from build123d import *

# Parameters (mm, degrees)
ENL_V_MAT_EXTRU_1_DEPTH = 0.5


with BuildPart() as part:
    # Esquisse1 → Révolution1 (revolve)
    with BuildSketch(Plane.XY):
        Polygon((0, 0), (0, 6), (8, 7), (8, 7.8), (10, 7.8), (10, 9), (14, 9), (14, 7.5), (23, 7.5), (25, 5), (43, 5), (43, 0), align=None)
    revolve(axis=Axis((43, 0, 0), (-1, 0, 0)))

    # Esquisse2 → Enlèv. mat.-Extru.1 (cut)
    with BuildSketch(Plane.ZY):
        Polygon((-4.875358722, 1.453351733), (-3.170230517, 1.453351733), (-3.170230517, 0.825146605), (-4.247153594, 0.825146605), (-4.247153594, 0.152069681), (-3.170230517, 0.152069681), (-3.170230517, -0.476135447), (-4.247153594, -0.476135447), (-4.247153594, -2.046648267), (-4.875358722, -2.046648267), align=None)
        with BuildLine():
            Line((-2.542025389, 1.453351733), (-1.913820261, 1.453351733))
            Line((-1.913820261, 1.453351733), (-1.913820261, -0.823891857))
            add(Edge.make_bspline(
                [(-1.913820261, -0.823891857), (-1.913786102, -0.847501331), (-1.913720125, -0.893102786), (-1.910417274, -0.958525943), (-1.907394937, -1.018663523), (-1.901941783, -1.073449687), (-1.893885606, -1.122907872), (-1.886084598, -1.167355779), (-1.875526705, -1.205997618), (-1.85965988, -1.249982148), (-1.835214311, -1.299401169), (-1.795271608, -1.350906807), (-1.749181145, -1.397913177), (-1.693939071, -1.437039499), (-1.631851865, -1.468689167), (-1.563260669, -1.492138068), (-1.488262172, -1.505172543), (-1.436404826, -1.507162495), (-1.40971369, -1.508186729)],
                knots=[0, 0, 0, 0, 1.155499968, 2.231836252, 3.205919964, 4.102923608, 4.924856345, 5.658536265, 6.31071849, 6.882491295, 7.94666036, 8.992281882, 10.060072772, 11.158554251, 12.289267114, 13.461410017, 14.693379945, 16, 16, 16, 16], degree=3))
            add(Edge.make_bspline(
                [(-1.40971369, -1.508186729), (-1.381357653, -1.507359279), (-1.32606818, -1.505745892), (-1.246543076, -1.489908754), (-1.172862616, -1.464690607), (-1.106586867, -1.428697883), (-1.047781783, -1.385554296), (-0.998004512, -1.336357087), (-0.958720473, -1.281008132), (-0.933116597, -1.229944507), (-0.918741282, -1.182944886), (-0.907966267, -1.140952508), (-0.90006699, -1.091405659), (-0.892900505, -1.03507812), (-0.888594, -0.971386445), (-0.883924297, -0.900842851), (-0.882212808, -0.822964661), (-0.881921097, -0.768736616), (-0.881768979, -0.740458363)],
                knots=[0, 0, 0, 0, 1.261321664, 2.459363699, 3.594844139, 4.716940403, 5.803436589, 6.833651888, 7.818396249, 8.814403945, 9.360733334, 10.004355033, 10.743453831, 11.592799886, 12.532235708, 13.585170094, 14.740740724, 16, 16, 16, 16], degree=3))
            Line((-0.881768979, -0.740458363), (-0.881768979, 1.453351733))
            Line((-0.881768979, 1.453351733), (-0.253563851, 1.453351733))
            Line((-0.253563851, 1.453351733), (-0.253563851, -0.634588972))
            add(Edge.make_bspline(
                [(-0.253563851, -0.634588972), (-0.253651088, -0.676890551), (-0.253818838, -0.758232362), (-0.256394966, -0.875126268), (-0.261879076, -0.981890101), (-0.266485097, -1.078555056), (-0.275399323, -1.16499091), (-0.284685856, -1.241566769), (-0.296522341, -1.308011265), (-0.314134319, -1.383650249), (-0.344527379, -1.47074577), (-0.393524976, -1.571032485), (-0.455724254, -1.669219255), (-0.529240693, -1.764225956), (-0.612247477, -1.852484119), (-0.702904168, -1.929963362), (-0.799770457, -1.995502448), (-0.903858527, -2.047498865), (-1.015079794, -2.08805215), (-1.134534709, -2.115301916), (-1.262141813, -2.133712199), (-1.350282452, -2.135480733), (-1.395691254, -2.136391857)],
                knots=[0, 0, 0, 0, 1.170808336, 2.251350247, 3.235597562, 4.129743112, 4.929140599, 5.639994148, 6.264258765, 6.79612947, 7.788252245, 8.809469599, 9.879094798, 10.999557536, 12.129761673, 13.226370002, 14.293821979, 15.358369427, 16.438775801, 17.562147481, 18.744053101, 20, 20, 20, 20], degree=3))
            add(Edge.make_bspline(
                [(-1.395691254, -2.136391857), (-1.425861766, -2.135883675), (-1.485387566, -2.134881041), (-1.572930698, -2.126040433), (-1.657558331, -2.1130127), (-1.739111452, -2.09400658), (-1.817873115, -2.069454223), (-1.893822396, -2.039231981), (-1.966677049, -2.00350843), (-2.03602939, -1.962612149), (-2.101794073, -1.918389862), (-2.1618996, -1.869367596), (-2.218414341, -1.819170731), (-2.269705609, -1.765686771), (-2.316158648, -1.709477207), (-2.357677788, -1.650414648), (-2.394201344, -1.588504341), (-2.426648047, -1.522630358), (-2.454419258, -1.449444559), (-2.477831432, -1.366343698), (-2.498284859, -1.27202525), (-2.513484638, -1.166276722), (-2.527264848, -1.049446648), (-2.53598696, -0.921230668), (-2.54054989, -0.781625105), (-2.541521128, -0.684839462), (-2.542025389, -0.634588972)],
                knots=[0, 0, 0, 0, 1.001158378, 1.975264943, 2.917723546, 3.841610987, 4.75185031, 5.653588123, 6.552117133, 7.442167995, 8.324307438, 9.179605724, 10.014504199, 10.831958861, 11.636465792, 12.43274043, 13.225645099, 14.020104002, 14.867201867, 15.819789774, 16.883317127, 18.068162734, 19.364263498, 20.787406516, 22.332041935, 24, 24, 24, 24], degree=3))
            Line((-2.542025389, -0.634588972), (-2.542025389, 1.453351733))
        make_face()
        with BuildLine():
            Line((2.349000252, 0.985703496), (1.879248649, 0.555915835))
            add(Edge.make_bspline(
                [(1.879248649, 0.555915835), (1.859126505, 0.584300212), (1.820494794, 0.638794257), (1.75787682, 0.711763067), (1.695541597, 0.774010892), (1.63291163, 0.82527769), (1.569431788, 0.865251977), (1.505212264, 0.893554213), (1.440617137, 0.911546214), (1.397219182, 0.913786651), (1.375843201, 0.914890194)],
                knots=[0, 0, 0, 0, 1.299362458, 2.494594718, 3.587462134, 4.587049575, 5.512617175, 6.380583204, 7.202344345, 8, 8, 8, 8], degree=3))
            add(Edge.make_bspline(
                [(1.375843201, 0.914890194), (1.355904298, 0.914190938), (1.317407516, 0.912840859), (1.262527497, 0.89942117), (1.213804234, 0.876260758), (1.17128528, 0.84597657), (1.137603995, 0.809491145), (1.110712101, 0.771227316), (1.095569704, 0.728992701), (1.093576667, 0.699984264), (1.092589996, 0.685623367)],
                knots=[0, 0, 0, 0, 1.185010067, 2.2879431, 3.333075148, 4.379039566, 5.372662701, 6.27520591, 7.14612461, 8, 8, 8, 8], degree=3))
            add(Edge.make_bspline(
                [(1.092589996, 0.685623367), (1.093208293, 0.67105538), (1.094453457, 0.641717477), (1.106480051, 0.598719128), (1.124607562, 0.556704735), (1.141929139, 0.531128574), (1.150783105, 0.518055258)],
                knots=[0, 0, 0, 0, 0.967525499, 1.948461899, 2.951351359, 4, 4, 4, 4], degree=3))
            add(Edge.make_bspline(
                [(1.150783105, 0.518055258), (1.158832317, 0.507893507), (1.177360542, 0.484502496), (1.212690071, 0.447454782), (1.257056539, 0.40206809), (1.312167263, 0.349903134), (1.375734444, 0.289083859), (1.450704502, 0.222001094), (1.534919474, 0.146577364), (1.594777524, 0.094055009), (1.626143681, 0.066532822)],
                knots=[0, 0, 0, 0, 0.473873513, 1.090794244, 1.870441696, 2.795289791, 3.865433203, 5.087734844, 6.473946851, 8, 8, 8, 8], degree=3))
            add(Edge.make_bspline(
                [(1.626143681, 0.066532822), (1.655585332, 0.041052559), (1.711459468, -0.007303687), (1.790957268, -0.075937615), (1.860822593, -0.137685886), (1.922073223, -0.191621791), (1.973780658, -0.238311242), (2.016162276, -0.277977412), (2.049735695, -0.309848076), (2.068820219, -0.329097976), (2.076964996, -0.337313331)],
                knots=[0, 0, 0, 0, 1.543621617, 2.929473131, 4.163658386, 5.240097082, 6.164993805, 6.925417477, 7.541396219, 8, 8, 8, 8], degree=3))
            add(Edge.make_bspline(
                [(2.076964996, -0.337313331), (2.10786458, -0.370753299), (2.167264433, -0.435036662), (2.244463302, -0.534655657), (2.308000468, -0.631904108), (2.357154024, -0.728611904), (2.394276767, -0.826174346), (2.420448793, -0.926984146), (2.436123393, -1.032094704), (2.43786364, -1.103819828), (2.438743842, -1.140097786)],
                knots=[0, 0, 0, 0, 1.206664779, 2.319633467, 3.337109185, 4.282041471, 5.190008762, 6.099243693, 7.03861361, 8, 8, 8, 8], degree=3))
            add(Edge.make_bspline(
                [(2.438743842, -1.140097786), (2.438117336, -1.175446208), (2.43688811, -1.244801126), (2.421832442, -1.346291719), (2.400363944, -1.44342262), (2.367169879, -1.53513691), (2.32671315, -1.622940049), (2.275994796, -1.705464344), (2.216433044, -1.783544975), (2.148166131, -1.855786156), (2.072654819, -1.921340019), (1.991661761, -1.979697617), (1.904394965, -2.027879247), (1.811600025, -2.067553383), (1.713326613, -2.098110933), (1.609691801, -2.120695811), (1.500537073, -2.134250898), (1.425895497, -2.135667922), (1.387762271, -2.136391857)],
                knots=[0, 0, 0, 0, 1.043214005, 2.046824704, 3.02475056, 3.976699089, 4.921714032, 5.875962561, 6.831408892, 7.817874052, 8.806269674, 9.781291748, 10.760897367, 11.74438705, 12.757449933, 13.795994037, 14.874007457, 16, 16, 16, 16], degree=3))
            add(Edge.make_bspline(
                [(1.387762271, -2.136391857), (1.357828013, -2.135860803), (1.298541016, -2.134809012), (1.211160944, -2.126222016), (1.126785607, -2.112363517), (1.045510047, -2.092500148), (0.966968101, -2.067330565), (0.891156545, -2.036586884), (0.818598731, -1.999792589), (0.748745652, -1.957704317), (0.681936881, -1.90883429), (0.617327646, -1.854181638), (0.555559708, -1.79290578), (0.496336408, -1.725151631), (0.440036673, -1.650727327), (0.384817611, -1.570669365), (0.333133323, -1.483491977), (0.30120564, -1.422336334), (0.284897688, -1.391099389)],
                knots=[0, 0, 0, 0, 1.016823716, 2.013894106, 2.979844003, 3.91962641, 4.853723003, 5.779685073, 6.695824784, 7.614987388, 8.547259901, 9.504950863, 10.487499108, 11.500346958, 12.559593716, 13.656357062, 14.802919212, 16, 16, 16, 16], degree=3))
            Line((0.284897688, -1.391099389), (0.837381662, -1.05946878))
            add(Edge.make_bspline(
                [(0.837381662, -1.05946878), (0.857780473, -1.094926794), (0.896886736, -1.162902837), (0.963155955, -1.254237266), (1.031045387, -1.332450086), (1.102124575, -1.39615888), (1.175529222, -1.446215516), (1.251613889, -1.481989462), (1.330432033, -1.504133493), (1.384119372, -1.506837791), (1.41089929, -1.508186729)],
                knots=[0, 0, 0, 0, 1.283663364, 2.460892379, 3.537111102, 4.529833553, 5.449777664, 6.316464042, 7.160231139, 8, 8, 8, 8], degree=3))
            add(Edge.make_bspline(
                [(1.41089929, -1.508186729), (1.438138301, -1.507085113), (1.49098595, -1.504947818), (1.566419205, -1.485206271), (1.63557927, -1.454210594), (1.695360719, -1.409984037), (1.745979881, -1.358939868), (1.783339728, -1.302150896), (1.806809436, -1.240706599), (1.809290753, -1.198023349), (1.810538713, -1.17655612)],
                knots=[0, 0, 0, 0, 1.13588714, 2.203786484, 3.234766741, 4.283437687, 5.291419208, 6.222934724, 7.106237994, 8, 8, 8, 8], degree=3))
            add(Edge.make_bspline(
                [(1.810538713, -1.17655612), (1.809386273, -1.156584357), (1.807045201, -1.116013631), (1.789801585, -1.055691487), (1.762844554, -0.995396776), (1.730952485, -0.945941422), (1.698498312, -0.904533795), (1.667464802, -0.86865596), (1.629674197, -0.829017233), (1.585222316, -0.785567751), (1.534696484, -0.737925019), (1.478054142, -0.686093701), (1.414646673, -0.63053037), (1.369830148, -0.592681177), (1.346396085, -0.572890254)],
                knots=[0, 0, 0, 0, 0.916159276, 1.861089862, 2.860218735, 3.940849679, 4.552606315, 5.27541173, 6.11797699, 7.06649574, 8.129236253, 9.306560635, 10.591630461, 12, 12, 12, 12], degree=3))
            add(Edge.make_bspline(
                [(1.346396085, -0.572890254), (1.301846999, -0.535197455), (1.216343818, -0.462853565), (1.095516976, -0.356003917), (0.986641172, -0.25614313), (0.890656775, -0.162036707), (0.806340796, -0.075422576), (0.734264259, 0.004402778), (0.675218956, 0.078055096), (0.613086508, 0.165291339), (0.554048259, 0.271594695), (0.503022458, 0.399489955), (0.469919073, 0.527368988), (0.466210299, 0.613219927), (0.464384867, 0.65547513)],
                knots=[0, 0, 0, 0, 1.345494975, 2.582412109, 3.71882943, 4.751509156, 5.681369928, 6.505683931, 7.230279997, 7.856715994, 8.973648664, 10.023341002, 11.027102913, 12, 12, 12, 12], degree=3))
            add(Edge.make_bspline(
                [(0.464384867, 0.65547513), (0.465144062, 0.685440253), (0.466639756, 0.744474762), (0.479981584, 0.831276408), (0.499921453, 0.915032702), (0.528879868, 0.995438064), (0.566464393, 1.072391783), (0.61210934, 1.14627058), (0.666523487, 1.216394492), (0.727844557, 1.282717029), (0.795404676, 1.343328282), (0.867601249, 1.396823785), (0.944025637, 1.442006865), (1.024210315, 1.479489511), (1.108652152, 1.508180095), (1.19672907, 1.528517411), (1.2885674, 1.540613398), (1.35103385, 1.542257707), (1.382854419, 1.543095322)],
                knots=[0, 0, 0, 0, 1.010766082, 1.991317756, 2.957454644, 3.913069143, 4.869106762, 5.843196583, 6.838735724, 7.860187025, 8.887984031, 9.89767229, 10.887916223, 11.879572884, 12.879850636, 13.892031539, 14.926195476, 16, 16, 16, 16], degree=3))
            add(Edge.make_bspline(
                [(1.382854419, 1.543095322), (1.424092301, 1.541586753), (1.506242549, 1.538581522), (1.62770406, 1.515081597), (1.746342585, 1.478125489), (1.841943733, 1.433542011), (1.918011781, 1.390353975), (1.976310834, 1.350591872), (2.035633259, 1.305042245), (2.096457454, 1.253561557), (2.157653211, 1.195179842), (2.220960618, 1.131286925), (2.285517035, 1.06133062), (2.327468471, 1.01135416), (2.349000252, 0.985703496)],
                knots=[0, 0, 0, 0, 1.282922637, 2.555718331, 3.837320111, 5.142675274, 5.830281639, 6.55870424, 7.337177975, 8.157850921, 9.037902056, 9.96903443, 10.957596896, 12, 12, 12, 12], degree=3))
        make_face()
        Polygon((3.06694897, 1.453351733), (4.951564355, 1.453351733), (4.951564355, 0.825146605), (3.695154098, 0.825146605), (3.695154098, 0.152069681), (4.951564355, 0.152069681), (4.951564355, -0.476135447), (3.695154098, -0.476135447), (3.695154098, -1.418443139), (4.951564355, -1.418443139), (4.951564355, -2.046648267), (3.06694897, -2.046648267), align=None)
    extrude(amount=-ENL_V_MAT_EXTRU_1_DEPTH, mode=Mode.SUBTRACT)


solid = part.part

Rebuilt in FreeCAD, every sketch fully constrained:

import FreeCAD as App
import Part
import Sketcher


def add_polygon(sketch, points):
    """Adds a closed chain of lines whose ends are joined by coincident constraints."""
    first, n = sketch.GeometryCount, len(points)
    for a, b in zip(points, points[1:] + points[:1]):
        sketch.addGeometry(Part.LineSegment(App.Vector(*a, 0), App.Vector(*b, 0)), False)
    for i in range(n):
        sketch.addConstraint(Sketcher.Constraint("Coincident", first + i, 2, first + (i + 1) % n, 1))

doc = App.newDocument("Part")
params = doc.addObject("Spreadsheet::Sheet", "Params")
for row, (alias, value) in enumerate([
    ("sketch1_width", "43 mm"),
    ("sketch1_width2", "18 mm"),
    ("sketch1_width3", "9 mm"),
    ("sketch1_width4", "4 mm"),
    ("sketch1_width5", "2 mm"),
    ("revolution_angle", "360 deg"),
    ("sketch2_width", "3.5 mm"),
    ("sketch2_width2", "3.5 mm"),
    ("pocket1_length", "0.5 mm"),
], start=1):
    params.set(f"A{row}", alias)
    params.set(f"B{row}", "=" + value)
    params.setAlias(f"B{row}", alias)

body = doc.addObject("PartDesign::Body", "Body")

sketch1 = body.newObject("Sketcher::SketchObject", "Sketch")
sketch1.AttachmentSupport = (doc.getObject("XY_Plane"), [""])
sketch1.MapMode = "FlatFace"
add_polygon(sketch1, [(0, 6), (0, 0), (43, 0), (43, 5), (25, 5), (23, 7.5), (14, 7.5), (14, 9), (10, 9), (10, 7.8), (8, 7.8), (8, 7)])
sketch1.addConstraint(Sketcher.Constraint("Vertical", 0))
sketch1.addConstraint(Sketcher.Constraint("Horizontal", 1))
sketch1.addConstraint(Sketcher.Constraint("Vertical", 2))
sketch1.addConstraint(Sketcher.Constraint("Horizontal", 3))
sketch1.addConstraint(Sketcher.Constraint("Horizontal", 5))
sketch1.addConstraint(Sketcher.Constraint("Vertical", 6))
sketch1.addConstraint(Sketcher.Constraint("Horizontal", 7))
sketch1.addConstraint(Sketcher.Constraint("Vertical", 8))
sketch1.addConstraint(Sketcher.Constraint("Horizontal", 9))
sketch1.addConstraint(Sketcher.Constraint("Vertical", 10))
sketch1.addConstraint(Sketcher.Constraint("Coincident", 0, 2, -1, 1))
sketch1.addConstraint(Sketcher.Constraint("DistanceX", 1, 1, 1, 2, 43.0))
sketch1.addConstraint(Sketcher.Constraint("DistanceX", 3, 2, 3, 1, 18.0))
sketch1.addConstraint(Sketcher.Constraint("DistanceX", 5, 2, 5, 1, 9.0))
sketch1.addConstraint(Sketcher.Constraint("DistanceX", 7, 2, 7, 1, 4.0))
sketch1.addConstraint(Sketcher.Constraint("DistanceX", 9, 2, 9, 1, 2.0))
sketch1.addConstraint(Sketcher.Constraint("DistanceY", 0, 2, 0, 1, 6.0))
sketch1.addConstraint(Sketcher.Constraint("DistanceY", 2, 1, 2, 2, 5.0))
sketch1.addConstraint(Sketcher.Constraint("DistanceY", 6, 1, 6, 2, 1.5))
sketch1.addConstraint(Sketcher.Constraint("DistanceY", 8, 2, 8, 1, 1.2))
sketch1.addConstraint(Sketcher.Constraint("DistanceY", 10, 2, 10, 1, 0.8))
sketch1.addConstraint(Sketcher.Constraint("DistanceX", -1, 1, 4, 2, 23.0))
sketch1.addConstraint(Sketcher.Constraint("DistanceY", -1, 1, 6, 2, 9.0))
sketch1.setExpression("Constraints[23]", "Params.sketch1_width")
sketch1.setExpression("Constraints[24]", "Params.sketch1_width2")
sketch1.setExpression("Constraints[25]", "Params.sketch1_width3")
sketch1.setExpression("Constraints[26]", "Params.sketch1_width4")
sketch1.setExpression("Constraints[27]", "Params.sketch1_width5")
revolution = body.newObject("PartDesign::Revolution", "Revolution")
revolution.Profile = sketch1
revolution.ReferenceAxis = (sketch1, ["H_Axis"])
revolution.setExpression("Angle", "Params.revolution_angle")

sketch2 = body.newObject("Sketcher::SketchObject", "Sketch001")
sketch2.AttachmentSupport = (doc.getObject("YZ_Plane"), [""])
sketch2.MapMode = "FlatFace"
add_polygon(sketch2, [(1.453352, -3.170231), (1.453352, -4.875359), (-2.046648, -4.875359), (-2.046648, -4.247154), (-0.476135, -4.247154), (-0.476135, -3.170231), (0.15207, -3.170231), (0.15207, -4.247154), (0.825147, -4.247154), (0.825147, -3.170231)])
sketch2.addGeometry(Part.LineSegment(App.Vector(1.453352, -1.91382, 0), App.Vector(1.453352, -2.542025, 0)), False)
sketch2.addGeometry(Part.LineSegment(App.Vector(1.453352, -2.542025, 0), App.Vector(-0.634589, -2.542025, 0)), False)
sketch2.addGeometry(Part.BSplineCurve([App.Vector(-2.136392, -1.395691, 0), App.Vector(-2.135884, -1.425862, 0), App.Vector(-2.134881, -1.485388, 0), App.Vector(-2.12604, -1.572931, 0), App.Vector(-2.113013, -1.657558, 0), App.Vector(-2.094007, -1.739111, 0), App.Vector(-2.069454, -1.817873, 0), App.Vector(-2.039232, -1.893822, 0), App.Vector(-2.003508, -1.966677, 0), App.Vector(-1.962612, -2.036029, 0), App.Vector(-1.91839, -2.101794, 0), App.Vector(-1.869368, -2.1619, 0), App.Vector(-1.819171, -2.218414, 0), App.Vector(-1.765687, -2.269706, 0), App.Vector(-1.709477, -2.316159, 0), App.Vector(-1.650415, -2.357678, 0), App.Vector(-1.588504, -2.394201, 0), App.Vector(-1.52263, -2.426648, 0), App.Vector(-1.449445, -2.454419, 0), App.Vector(-1.366344, -2.477831, 0), App.Vector(-1.272025, -2.498285, 0), App.Vector(-1.166277, -2.513485, 0), App.Vector(-1.049447, -2.527265, 0), App.Vector(-0.921231, -2.535987, 0), App.Vector(-0.781625, -2.54055, 0), App.Vector(-0.684839, -2.541521, 0), App.Vector(-0.634589, -2.542025, 0)], [4, 1, 1, 1, 1, 1, 1, 1, 1, 1, 1, 1, 1, 1, 1, 1, 1, 1, 1, 1, 1, 1, 1, 1, 4], [0, 1.001158378, 1.975264943, 2.917723546, 3.841610987, 4.75185031, 5.653588123, 6.552117133, 7.442167995, 8.324307438, 9.179605724, 10.014504199, 10.831958861, 11.636465792, 12.43274043, 13.225645099, 14.020104002, 14.867201867, 15.819789774, 16.883317127, 18.068162734, 19.364263498, 20.787406516, 22.332041935, 24], False, 3, [1, 1, 1, 1, 1, 1, 1, 1, 1, 1, 1, 1, 1, 1, 1, 1, 1, 1, 1, 1, 1, 1, 1, 1, 1, 1, 1], False), False)
sketch2.addGeometry(Part.BSplineCurve([App.Vector(-0.634589, -0.253564, 0), App.Vector(-0.676891, -0.253651, 0), App.Vector(-0.758232, -0.253819, 0), App.Vector(-0.875126, -0.256395, 0), App.Vector(-0.98189, -0.261879, 0), App.Vector(-1.078555, -0.266485, 0), App.Vector(-1.164991, -0.275399, 0), App.Vector(-1.241567, -0.284686, 0), App.Vector(-1.308011, -0.296522, 0), App.Vector(-1.38365, -0.314134, 0), App.Vector(-1.470746, -0.344527, 0), App.Vector(-1.571032, -0.393525, 0), App.Vector(-1.669219, -0.455724, 0), App.Vector(-1.764226, -0.529241, 0), App.Vector(-1.852484, -0.612247, 0), App.Vector(-1.929963, -0.702904, 0), App.Vector(-1.995502, -0.79977, 0), App.Vector(-2.047499, -0.903859, 0), App.Vector(-2.088052, -1.01508, 0), App.Vector(-2.115302, -1.134535, 0), App.Vector(-2.133712, -1.262142, 0), App.Vector(-2.135481, -1.350282, 0), App.Vector(-2.136392, -1.395691, 0)], [4, 1, 1, 1, 1, 1, 1, 1, 1, 1, 1, 1, 1, 1, 1, 1, 1, 1, 1, 1, 4], [0, 1.170808336, 2.251350247, 3.235597562, 4.129743112, 4.929140599, 5.639994148, 6.264258765, 6.79612947, 7.788252245, 8.809469599, 9.879094798, 10.999557536, 12.129761673, 13.226370002, 14.293821979, 15.358369427, 16.438775801, 17.562147481, 18.744053101, 20], False, 3, [1, 1, 1, 1, 1, 1, 1, 1, 1, 1, 1, 1, 1, 1, 1, 1, 1, 1, 1, 1, 1, 1, 1], False), False)
sketch2.addGeometry(Part.LineSegment(App.Vector(-0.634589, -0.253564, 0), App.Vector(1.453352, -0.253564, 0)), False)
sketch2.addGeometry(Part.LineSegment(App.Vector(1.453352, -0.253564, 0), App.Vector(1.453352, -0.881769, 0)), False)
sketch2.addGeometry(Part.LineSegment(App.Vector(1.453352, -0.881769, 0), App.Vector(-0.740458, -0.881769, 0)), False)
sketch2.addGeometry(Part.BSplineCurve([App.Vector(-1.508187, -1.409714, 0), App.Vector(-1.507359, -1.381358, 0), App.Vector(-1.505746, -1.326068, 0), App.Vector(-1.489909, -1.246543, 0), App.Vector(-1.464691, -1.172863, 0), App.Vector(-1.428698, -1.106587, 0), App.Vector(-1.385554, -1.047782, 0), App.Vector(-1.336357, -0.998005, 0), App.Vector(-1.281008, -0.95872, 0), App.Vector(-1.229945, -0.933117, 0), App.Vector(-1.182945, -0.918741, 0), App.Vector(-1.140953, -0.907966, 0), App.Vector(-1.091406, -0.900067, 0), App.Vector(-1.035078, -0.892901, 0), App.Vector(-0.971386, -0.888594, 0), App.Vector(-0.900843, -0.883924, 0), App.Vector(-0.822965, -0.882213, 0), App.Vector(-0.768737, -0.881921, 0), App.Vector(-0.740458, -0.881769, 0)], [4, 1, 1, 1, 1, 1, 1, 1, 1, 1, 1, 1, 1, 1, 1, 1, 4], [0, 1.261321664, 2.459363699, 3.594844139, 4.716940403, 5.803436589, 6.833651888, 7.818396249, 8.814403945, 9.360733334, 10.004355033, 10.743453831, 11.592799886, 12.532235708, 13.585170094, 14.740740724, 16], False, 3, [1, 1, 1, 1, 1, 1, 1, 1, 1, 1, 1, 1, 1, 1, 1, 1, 1, 1, 1], False), False)
sketch2.addGeometry(Part.BSplineCurve([App.Vector(-0.823892, -1.91382, 0), App.Vector(-0.847501, -1.913786, 0), App.Vector(-0.893103, -1.91372, 0), App.Vector(-0.958526, -1.910417, 0), App.Vector(-1.018664, -1.907395, 0), App.Vector(-1.07345, -1.901942, 0), App.Vector(-1.122908, -1.893886, 0), App.Vector(-1.167356, -1.886085, 0), App.Vector(-1.205998, -1.875527, 0), App.Vector(-1.249982, -1.85966, 0), App.Vector(-1.299401, -1.835214, 0), App.Vector(-1.350907, -1.795272, 0), App.Vector(-1.397913, -1.749181, 0), App.Vector(-1.437039, -1.693939, 0), App.Vector(-1.468689, -1.631852, 0), App.Vector(-1.492138, -1.563261, 0), App.Vector(-1.505173, -1.488262, 0), App.Vector(-1.507162, -1.436405, 0), App.Vector(-1.508187, -1.409714, 0)], [4, 1, 1, 1, 1, 1, 1, 1, 1, 1, 1, 1, 1, 1, 1, 1, 4], [0, 1.155499968, 2.231836252, 3.205919964, 4.102923608, 4.924856345, 5.658536265, 6.31071849, 6.882491295, 7.94666036, 8.992281882, 10.060072772, 11.158554251, 12.289267114, 13.461410017, 14.693379945, 16], False, 3, [1, 1, 1, 1, 1, 1, 1, 1, 1, 1, 1, 1, 1, 1, 1, 1, 1, 1, 1], False), False)
sketch2.addGeometry(Part.LineSegment(App.Vector(-0.823892, -1.91382, 0), App.Vector(1.453352, -1.91382, 0)), False)
sketch2.addGeometry(Part.LineSegment(App.Vector(0.555916, 1.879249, 0), App.Vector(0.985703, 2.349, 0)), False)
sketch2.addGeometry(Part.BSplineCurve([App.Vector(1.543095, 1.382854, 0), App.Vector(1.541587, 1.424092, 0), App.Vector(1.538582, 1.506243, 0), App.Vector(1.515082, 1.627704, 0), App.Vector(1.478125, 1.746343, 0), App.Vector(1.433542, 1.841944, 0), App.Vector(1.390354, 1.918012, 0), App.Vector(1.350592, 1.976311, 0), App.Vector(1.305042, 2.035633, 0), App.Vector(1.253562, 2.096457, 0), App.Vector(1.19518, 2.157653, 0), App.Vector(1.131287, 2.220961, 0), App.Vector(1.061331, 2.285517, 0), App.Vector(1.011354, 2.327468, 0), App.Vector(0.985703, 2.349, 0)], [4, 1, 1, 1, 1, 1, 1, 1, 1, 1, 1, 1, 4], [0, 1.282922637, 2.555718331, 3.837320111, 5.142675274, 5.830281639, 6.55870424, 7.337177975, 8.157850921, 9.037902056, 9.96903443, 10.957596896, 12], False, 3, [1, 1, 1, 1, 1, 1, 1, 1, 1, 1, 1, 1, 1, 1, 1], False), False)
sketch2.addGeometry(Part.BSplineCurve([App.Vector(0.655475, 0.464385, 0), App.Vector(0.68544, 0.465144, 0), App.Vector(0.744475, 0.46664, 0), App.Vector(0.831276, 0.479982, 0), App.Vector(0.915033, 0.499921, 0), App.Vector(0.995438, 0.52888, 0), App.Vector(1.072392, 0.566464, 0), App.Vector(1.146271, 0.612109, 0), App.Vector(1.216394, 0.666523, 0), App.Vector(1.282717, 0.727845, 0), App.Vector(1.343328, 0.795405, 0), App.Vector(1.396824, 0.867601, 0), App.Vector(1.442007, 0.944026, 0), App.Vector(1.47949, 1.02421, 0), App.Vector(1.50818, 1.108652, 0), App.Vector(1.528517, 1.196729, 0), App.Vector(1.540613, 1.288567, 0), App.Vector(1.542258, 1.351034, 0), App.Vector(1.543095, 1.382854, 0)], [4, 1, 1, 1, 1, 1, 1, 1, 1, 1, 1, 1, 1, 1, 1, 1, 4], [0, 1.010766082, 1.991317756, 2.957454644, 3.913069143, 4.869106762, 5.843196583, 6.838735724, 7.860187025, 8.887984031, 9.89767229, 10.887916223, 11.879572884, 12.879850636, 13.892031539, 14.926195476, 16], False, 3, [1, 1, 1, 1, 1, 1, 1, 1, 1, 1, 1, 1, 1, 1, 1, 1, 1, 1, 1], False), False)
sketch2.addGeometry(Part.BSplineCurve([App.Vector(-0.57289, 1.346396, 0), App.Vector(-0.535197, 1.301847, 0), App.Vector(-0.462854, 1.216344, 0), App.Vector(-0.356004, 1.095517, 0), App.Vector(-0.256143, 0.986641, 0), App.Vector(-0.162037, 0.890657, 0), App.Vector(-0.075423, 0.806341, 0), App.Vector(0.004403, 0.734264, 0), App.Vector(0.078055, 0.675219, 0), App.Vector(0.165291, 0.613087, 0), App.Vector(0.271595, 0.554048, 0), App.Vector(0.39949, 0.503022, 0), App.Vector(0.527369, 0.469919, 0), App.Vector(0.61322, 0.46621, 0), App.Vector(0.655475, 0.464385, 0)], [4, 1, 1, 1, 1, 1, 1, 1, 1, 1, 1, 1, 4], [0, 1.345494975, 2.582412109, 3.71882943, 4.751509156, 5.681369928, 6.505683931, 7.230279997, 7.856715994, 8.973648664, 10.023341002, 11.027102913, 12], False, 3, [1, 1, 1, 1, 1, 1, 1, 1, 1, 1, 1, 1, 1, 1, 1], False), False)
sketch2.addGeometry(Part.BSplineCurve([App.Vector(-1.176556, 1.810539, 0), App.Vector(-1.156584, 1.809386, 0), App.Vector(-1.116014, 1.807045, 0), App.Vector(-1.055691, 1.789802, 0), App.Vector(-0.995397, 1.762845, 0), App.Vector(-0.945941, 1.730952, 0), App.Vector(-0.904534, 1.698498, 0), App.Vector(-0.868656, 1.667465, 0), App.Vector(-0.829017, 1.629674, 0), App.Vector(-0.785568, 1.585222, 0), App.Vector(-0.737925, 1.534696, 0), App.Vector(-0.686094, 1.478054, 0), App.Vector(-0.63053, 1.414647, 0), App.Vector(-0.592681, 1.36983, 0), App.Vector(-0.57289, 1.346396, 0)], [4, 1, 1, 1, 1, 1, 1, 1, 1, 1, 1, 1, 4], [0, 0.916159276, 1.861089862, 2.860218735, 3.940849679, 4.552606315, 5.27541173, 6.11797699, 7.06649574, 8.129236253, 9.306560635, 10.591630461, 12], False, 3, [1, 1, 1, 1, 1, 1, 1, 1, 1, 1, 1, 1, 1, 1, 1], False), False)
sketch2.addGeometry(Part.BSplineCurve([App.Vector(-1.508187, 1.410899, 0), App.Vector(-1.507085, 1.438138, 0), App.Vector(-1.504948, 1.490986, 0), App.Vector(-1.485206, 1.566419, 0), App.Vector(-1.454211, 1.635579, 0), App.Vector(-1.409984, 1.695361, 0), App.Vector(-1.35894, 1.74598, 0), App.Vector(-1.302151, 1.78334, 0), App.Vector(-1.240707, 1.806809, 0), App.Vector(-1.198023, 1.809291, 0), App.Vector(-1.176556, 1.810539, 0)], [4, 1, 1, 1, 1, 1, 1, 1, 4], [0, 1.13588714, 2.203786484, 3.234766741, 4.283437687, 5.291419208, 6.222934724, 7.106237994, 8], False, 3, [1, 1, 1, 1, 1, 1, 1, 1, 1, 1, 1], False), False)
sketch2.addGeometry(Part.BSplineCurve([App.Vector(-1.059469, 0.837382, 0), App.Vector(-1.094927, 0.85778, 0), App.Vector(-1.162903, 0.896887, 0), App.Vector(-1.254237, 0.963156, 0), App.Vector(-1.33245, 1.031045, 0), App.Vector(-1.396159, 1.102125, 0), App.Vector(-1.446216, 1.175529, 0), App.Vector(-1.481989, 1.251614, 0), App.Vector(-1.504133, 1.330432, 0), App.Vector(-1.506838, 1.384119, 0), App.Vector(-1.508187, 1.410899, 0)], [4, 1, 1, 1, 1, 1, 1, 1, 4], [0, 1.283663364, 2.460892379, 3.537111102, 4.529833553, 5.449777664, 6.316464042, 7.160231139, 8], False, 3, [1, 1, 1, 1, 1, 1, 1, 1, 1, 1, 1], False), False)
sketch2.addGeometry(Part.LineSegment(App.Vector(-1.059469, 0.837382, 0), App.Vector(-1.391099, 0.284898, 0)), False)
sketch2.addGeometry(Part.BSplineCurve([App.Vector(-2.136392, 1.387762, 0), App.Vector(-2.135861, 1.357828, 0), App.Vector(-2.134809, 1.298541, 0), App.Vector(-2.126222, 1.211161, 0), App.Vector(-2.112364, 1.126786, 0), App.Vector(-2.0925, 1.04551, 0), App.Vector(-2.067331, 0.966968, 0), App.Vector(-2.036587, 0.891157, 0), App.Vector(-1.999793, 0.818599, 0), App.Vector(-1.957704, 0.748746, 0), App.Vector(-1.908834, 0.681937, 0), App.Vector(-1.854182, 0.617328, 0), App.Vector(-1.792906, 0.55556, 0), App.Vector(-1.725152, 0.496336, 0), App.Vector(-1.650727, 0.440037, 0), App.Vector(-1.570669, 0.384818, 0), App.Vector(-1.483492, 0.333133, 0), App.Vector(-1.422336, 0.301206, 0), App.Vector(-1.391099, 0.284898, 0)], [4, 1, 1, 1, 1, 1, 1, 1, 1, 1, 1, 1, 1, 1, 1, 1, 4], [0, 1.016823716, 2.013894106, 2.979844003, 3.91962641, 4.853723003, 5.779685073, 6.695824784, 7.614987388, 8.547259901, 9.504950863, 10.487499108, 11.500346958, 12.559593716, 13.656357062, 14.802919212, 16], False, 3, [1, 1, 1, 1, 1, 1, 1, 1, 1, 1, 1, 1, 1, 1, 1, 1, 1, 1, 1], False), False)
sketch2.addGeometry(Part.BSplineCurve([App.Vector(-1.140098, 2.438744, 0), App.Vector(-1.175446, 2.438117, 0), App.Vector(-1.244801, 2.436888, 0), App.Vector(-1.346292, 2.421832, 0), App.Vector(-1.443423, 2.400364, 0), App.Vector(-1.535137, 2.36717, 0), App.Vector(-1.62294, 2.326713, 0), App.Vector(-1.705464, 2.275995, 0), App.Vector(-1.783545, 2.216433, 0), App.Vector(-1.855786, 2.148166, 0), App.Vector(-1.92134, 2.072655, 0), App.Vector(-1.979698, 1.991662, 0), App.Vector(-2.027879, 1.904395, 0), App.Vector(-2.067553, 1.8116, 0), App.Vector(-2.098111, 1.713327, 0), App.Vector(-2.120696, 1.609692, 0), App.Vector(-2.134251, 1.500537, 0), App.Vector(-2.135668, 1.425895, 0), App.Vector(-2.136392, 1.387762, 0)], [4, 1, 1, 1, 1, 1, 1, 1, 1, 1, 1, 1, 1, 1, 1, 1, 4], [0, 1.043214005, 2.046824704, 3.02475056, 3.976699089, 4.921714032, 5.875962561, 6.831408892, 7.817874052, 8.806269674, 9.781291748, 10.760897367, 11.74438705, 12.757449933, 13.795994037, 14.874007457, 16], False, 3, [1, 1, 1, 1, 1, 1, 1, 1, 1, 1, 1, 1, 1, 1, 1, 1, 1, 1, 1], False), False)
sketch2.addGeometry(Part.BSplineCurve([App.Vector(-0.337313, 2.076965, 0), App.Vector(-0.370753, 2.107865, 0), App.Vector(-0.435037, 2.167264, 0), App.Vector(-0.534656, 2.244463, 0), App.Vector(-0.631904, 2.308, 0), App.Vector(-0.728612, 2.357154, 0), App.Vector(-0.826174, 2.394277, 0), App.Vector(-0.926984, 2.420449, 0), App.Vector(-1.032095, 2.436123, 0), App.Vector(-1.10382, 2.437864, 0), App.Vector(-1.140098, 2.438744, 0)], [4, 1, 1, 1, 1, 1, 1, 1, 4], [0, 1.206664779, 2.319633467, 3.337109185, 4.282041471, 5.190008762, 6.099243693, 7.03861361, 8], False, 3, [1, 1, 1, 1, 1, 1, 1, 1, 1, 1, 1], False), False)
sketch2.addGeometry(Part.BSplineCurve([App.Vector(0.066533, 1.626144, 0), App.Vector(0.041053, 1.655585, 0), App.Vector(-0.007304, 1.711459, 0), App.Vector(-0.075938, 1.790957, 0), App.Vector(-0.137686, 1.860823, 0), App.Vector(-0.191622, 1.922073, 0), App.Vector(-0.238311, 1.973781, 0), App.Vector(-0.277977, 2.016162, 0), App.Vector(-0.309848, 2.049736, 0), App.Vector(-0.329098, 2.06882, 0), App.Vector(-0.337313, 2.076965, 0)], [4, 1, 1, 1, 1, 1, 1, 1, 4], [0, 1.543621617, 2.929473131, 4.163658386, 5.240097082, 6.164993805, 6.925417477, 7.541396219, 8], False, 3, [1, 1, 1, 1, 1, 1, 1, 1, 1, 1, 1], False), False)
sketch2.addGeometry(Part.BSplineCurve([App.Vector(0.518055, 1.150783, 0), App.Vector(0.507894, 1.158832, 0), App.Vector(0.484502, 1.177361, 0), App.Vector(0.447455, 1.21269, 0), App.Vector(0.402068, 1.257057, 0), App.Vector(0.349903, 1.312167, 0), App.Vector(0.289084, 1.375734, 0), App.Vector(0.222001, 1.450705, 0), App.Vector(0.146577, 1.534919, 0), App.Vector(0.094055, 1.594778, 0), App.Vector(0.066533, 1.626144, 0)], [4, 1, 1, 1, 1, 1, 1, 1, 4], [0, 0.473873513, 1.090794244, 1.870441696, 2.795289791, 3.865433203, 5.087734844, 6.473946851, 8], False, 3, [1, 1, 1, 1, 1, 1, 1, 1, 1, 1, 1], False), False)
sketch2.addGeometry(Part.BSplineCurve([App.Vector(0.685623, 1.09259, 0), App.Vector(0.671055, 1.093208, 0), App.Vector(0.641717, 1.094453, 0), App.Vector(0.598719, 1.10648, 0), App.Vector(0.556705, 1.124608, 0), App.Vector(0.531129, 1.141929, 0), App.Vector(0.518055, 1.150783, 0)], [4, 1, 1, 1, 4], [0, 0.967525499, 1.948461899, 2.951351359, 4], False, 3, [1, 1, 1, 1, 1, 1, 1], False), False)
sketch2.addGeometry(Part.BSplineCurve([App.Vector(0.91489, 1.375843, 0), App.Vector(0.914191, 1.355904, 0), App.Vector(0.912841, 1.317408, 0), App.Vector(0.899421, 1.262527, 0), App.Vector(0.876261, 1.213804, 0), App.Vector(0.845977, 1.171285, 0), App.Vector(0.809491, 1.137604, 0), App.Vector(0.771227, 1.110712, 0), App.Vector(0.728993, 1.09557, 0), App.Vector(0.699984, 1.093577, 0), App.Vector(0.685623, 1.09259, 0)], [4, 1, 1, 1, 1, 1, 1, 1, 4], [0, 1.185010067, 2.2879431, 3.333075148, 4.379039566, 5.372662701, 6.27520591, 7.14612461, 8], False, 3, [1, 1, 1, 1, 1, 1, 1, 1, 1, 1, 1], False), False)
sketch2.addGeometry(Part.BSplineCurve([App.Vector(0.555916, 1.879249, 0), App.Vector(0.5843, 1.859127, 0), App.Vector(0.638794, 1.820495, 0), App.Vector(0.711763, 1.757877, 0), App.Vector(0.774011, 1.695542, 0), App.Vector(0.825278, 1.632912, 0), App.Vector(0.865252, 1.569432, 0), App.Vector(0.893554, 1.505212, 0), App.Vector(0.911546, 1.440617, 0), App.Vector(0.913787, 1.397219, 0), App.Vector(0.91489, 1.375843, 0)], [4, 1, 1, 1, 1, 1, 1, 1, 4], [0, 1.299362458, 2.494594718, 3.587462134, 4.587049575, 5.512617175, 6.380583204, 7.202344345, 8], False, 3, [1, 1, 1, 1, 1, 1, 1, 1, 1, 1, 1], False), False)
add_polygon(sketch2, [(1.453352, 4.951564), (1.453352, 3.066949), (-2.046648, 3.066949), (-2.046648, 4.951564), (-1.418443, 4.951564), (-1.418443, 3.695154), (-0.476135, 3.695154), (-0.476135, 4.951564), (0.15207, 4.951564), (0.15207, 3.695154), (0.825147, 3.695154), (0.825147, 4.951564)])
sketch2.addConstraint(Sketcher.Constraint("Block", 12))
sketch2.addConstraint(Sketcher.Constraint("Block", 13))
sketch2.addConstraint(Sketcher.Constraint("Block", 17))
sketch2.addConstraint(Sketcher.Constraint("Block", 18))
sketch2.addConstraint(Sketcher.Constraint("Block", 21))
sketch2.addConstraint(Sketcher.Constraint("Block", 22))
sketch2.addConstraint(Sketcher.Constraint("Block", 23))
sketch2.addConstraint(Sketcher.Constraint("Block", 24))
sketch2.addConstraint(Sketcher.Constraint("Block", 25))
sketch2.addConstraint(Sketcher.Constraint("Block", 26))
sketch2.addConstraint(Sketcher.Constraint("Block", 28))
sketch2.addConstraint(Sketcher.Constraint("Block", 29))
sketch2.addConstraint(Sketcher.Constraint("Block", 30))
sketch2.addConstraint(Sketcher.Constraint("Block", 31))
sketch2.addConstraint(Sketcher.Constraint("Block", 32))
sketch2.addConstraint(Sketcher.Constraint("Block", 33))
sketch2.addConstraint(Sketcher.Constraint("Block", 34))
sketch2.addConstraint(Sketcher.Constraint("Block", 35))
sketch2.addConstraint(Sketcher.Constraint("Coincident", 10, 2, 11, 1))
sketch2.addConstraint(Sketcher.Constraint("Coincident", 11, 2, 12, 2))
sketch2.addConstraint(Sketcher.Constraint("Coincident", 13, 1, 14, 1))
sketch2.addConstraint(Sketcher.Constraint("Coincident", 14, 2, 15, 1))
sketch2.addConstraint(Sketcher.Constraint("Coincident", 15, 2, 16, 1))
sketch2.addConstraint(Sketcher.Constraint("Coincident", 16, 2, 17, 2))
sketch2.addConstraint(Sketcher.Constraint("Coincident", 18, 1, 19, 1))
sketch2.addConstraint(Sketcher.Constraint("Coincident", 19, 2, 10, 1))
sketch2.addConstraint(Sketcher.Constraint("Coincident", 20, 2, 21, 2))
sketch2.addConstraint(Sketcher.Constraint("Coincident", 26, 1, 27, 1))
sketch2.addConstraint(Sketcher.Constraint("Coincident", 27, 2, 28, 2))
sketch2.addConstraint(Sketcher.Constraint("Coincident", 35, 1, 20, 1))
sketch2.addConstraint(Sketcher.Constraint("Vertical", 0))
sketch2.addConstraint(Sketcher.Constraint("Horizontal", 1))
sketch2.addConstraint(Sketcher.Constraint("Vertical", 2))
sketch2.addConstraint(Sketcher.Constraint("Horizontal", 3))
sketch2.addConstraint(Sketcher.Constraint("Vertical", 4))
sketch2.addConstraint(Sketcher.Constraint("Horizontal", 5))
sketch2.addConstraint(Sketcher.Constraint("Vertical", 6))
sketch2.addConstraint(Sketcher.Constraint("Horizontal", 7))
sketch2.addConstraint(Sketcher.Constraint("Vertical", 8))
sketch2.addConstraint(Sketcher.Constraint("Horizontal", 9))
sketch2.addConstraint(Sketcher.Constraint("Vertical", 10))
sketch2.addConstraint(Sketcher.Constraint("Horizontal", 11))
sketch2.addConstraint(Sketcher.Constraint("Horizontal", 14))
sketch2.addConstraint(Sketcher.Constraint("Vertical", 15))
sketch2.addConstraint(Sketcher.Constraint("Horizontal", 16))
sketch2.addConstraint(Sketcher.Constraint("Horizontal", 19))
sketch2.addConstraint(Sketcher.Constraint("Vertical", 36))
sketch2.addConstraint(Sketcher.Constraint("Horizontal", 37))
sketch2.addConstraint(Sketcher.Constraint("Vertical", 38))
sketch2.addConstraint(Sketcher.Constraint("Horizontal", 39))
sketch2.addConstraint(Sketcher.Constraint("Vertical", 40))
sketch2.addConstraint(Sketcher.Constraint("Horizontal", 41))
sketch2.addConstraint(Sketcher.Constraint("Vertical", 42))
sketch2.addConstraint(Sketcher.Constraint("Horizontal", 43))
sketch2.addConstraint(Sketcher.Constraint("Vertical", 44))
sketch2.addConstraint(Sketcher.Constraint("Horizontal", 45))
sketch2.addConstraint(Sketcher.Constraint("Vertical", 46))
sketch2.addConstraint(Sketcher.Constraint("Horizontal", 47))
sketch2.addConstraint(Sketcher.Constraint("DistanceX", 1, 2, 1, 1, 3.5))
sketch2.addConstraint(Sketcher.Constraint("DistanceX", 37, 2, 37, 1, 3.5))
sketch2.addConstraint(Sketcher.Constraint("DistanceX", 37, 2, 14, 2, 3.5))
sketch2.addConstraint(Sketcher.Constraint("DistanceX", 11, 2, 11, 1, 2.087941))
sketch2.addConstraint(Sketcher.Constraint("DistanceX", 14, 1, 14, 2, 2.087941))
sketch2.addConstraint(Sketcher.Constraint("DistanceY", 0, 2, 0, 1, 1.705128))
sketch2.addConstraint(Sketcher.Constraint("DistanceY", 40, 2, 40, 1, 1.25641))
sketch2.addConstraint(Sketcher.Constraint("DistanceY", 42, 1, 42, 2, 1.25641))
sketch2.addConstraint(Sketcher.Constraint("DistanceY", 44, 2, 44, 1, 1.25641))
sketch2.addConstraint(Sketcher.Constraint("DistanceY", 46, 1, 46, 2, 1.25641))
sketch2.addConstraint(Sketcher.Constraint("DistanceX", 3, 1, 3, 2, 1.570513))
sketch2.addConstraint(Sketcher.Constraint("DistanceX", 5, 1, 5, 2, 0.628205))
sketch2.addConstraint(Sketcher.Constraint("DistanceX", 7, 1, 7, 2, 0.673077))
sketch2.addConstraint(Sketcher.Constraint("DistanceX", 39, 1, 39, 2, 0.628205))
sketch2.addConstraint(Sketcher.Constraint("DistanceX", 41, 1, 41, 2, 0.942308))
sketch2.addConstraint(Sketcher.Constraint("DistanceX", 43, 1, 43, 2, 0.628205))
sketch2.addConstraint(Sketcher.Constraint("DistanceX", 45, 1, 45, 2, 0.673077))
sketch2.addConstraint(Sketcher.Constraint("DistanceY", 2, 1, 2, 2, 0.628205))
sketch2.addConstraint(Sketcher.Constraint("DistanceY", 4, 1, 4, 2, 1.076923))
sketch2.addConstraint(Sketcher.Constraint("DistanceY", 6, 2, 6, 1, 1.076923))
sketch2.addConstraint(Sketcher.Constraint("DistanceY", 36, 2, 36, 1, 1.884615))
sketch2.addConstraint(Sketcher.Constraint("DistanceX", -1, 1, 0, 2, 1.453352))
sketch2.addConstraint(Sketcher.Constraint("DistanceY", 0, 2, -1, 1, 4.875359))
sketch2.addConstraint(Sketcher.Constraint("DistanceY", -1, 1, 36, 2, 3.066949))
sketch2.setExpression("Constraints[80]", "Params.sketch2_width")
sketch2.setExpression("Constraints[81]", "Params.sketch2_width2")
pocket1 = body.newObject("PartDesign::Pocket", "Pocket")
pocket1.Profile = sketch2
pocket1.setExpression("Length", "Params.pocket1_length")
pocket1.Reversed = True

doc.recompute()
